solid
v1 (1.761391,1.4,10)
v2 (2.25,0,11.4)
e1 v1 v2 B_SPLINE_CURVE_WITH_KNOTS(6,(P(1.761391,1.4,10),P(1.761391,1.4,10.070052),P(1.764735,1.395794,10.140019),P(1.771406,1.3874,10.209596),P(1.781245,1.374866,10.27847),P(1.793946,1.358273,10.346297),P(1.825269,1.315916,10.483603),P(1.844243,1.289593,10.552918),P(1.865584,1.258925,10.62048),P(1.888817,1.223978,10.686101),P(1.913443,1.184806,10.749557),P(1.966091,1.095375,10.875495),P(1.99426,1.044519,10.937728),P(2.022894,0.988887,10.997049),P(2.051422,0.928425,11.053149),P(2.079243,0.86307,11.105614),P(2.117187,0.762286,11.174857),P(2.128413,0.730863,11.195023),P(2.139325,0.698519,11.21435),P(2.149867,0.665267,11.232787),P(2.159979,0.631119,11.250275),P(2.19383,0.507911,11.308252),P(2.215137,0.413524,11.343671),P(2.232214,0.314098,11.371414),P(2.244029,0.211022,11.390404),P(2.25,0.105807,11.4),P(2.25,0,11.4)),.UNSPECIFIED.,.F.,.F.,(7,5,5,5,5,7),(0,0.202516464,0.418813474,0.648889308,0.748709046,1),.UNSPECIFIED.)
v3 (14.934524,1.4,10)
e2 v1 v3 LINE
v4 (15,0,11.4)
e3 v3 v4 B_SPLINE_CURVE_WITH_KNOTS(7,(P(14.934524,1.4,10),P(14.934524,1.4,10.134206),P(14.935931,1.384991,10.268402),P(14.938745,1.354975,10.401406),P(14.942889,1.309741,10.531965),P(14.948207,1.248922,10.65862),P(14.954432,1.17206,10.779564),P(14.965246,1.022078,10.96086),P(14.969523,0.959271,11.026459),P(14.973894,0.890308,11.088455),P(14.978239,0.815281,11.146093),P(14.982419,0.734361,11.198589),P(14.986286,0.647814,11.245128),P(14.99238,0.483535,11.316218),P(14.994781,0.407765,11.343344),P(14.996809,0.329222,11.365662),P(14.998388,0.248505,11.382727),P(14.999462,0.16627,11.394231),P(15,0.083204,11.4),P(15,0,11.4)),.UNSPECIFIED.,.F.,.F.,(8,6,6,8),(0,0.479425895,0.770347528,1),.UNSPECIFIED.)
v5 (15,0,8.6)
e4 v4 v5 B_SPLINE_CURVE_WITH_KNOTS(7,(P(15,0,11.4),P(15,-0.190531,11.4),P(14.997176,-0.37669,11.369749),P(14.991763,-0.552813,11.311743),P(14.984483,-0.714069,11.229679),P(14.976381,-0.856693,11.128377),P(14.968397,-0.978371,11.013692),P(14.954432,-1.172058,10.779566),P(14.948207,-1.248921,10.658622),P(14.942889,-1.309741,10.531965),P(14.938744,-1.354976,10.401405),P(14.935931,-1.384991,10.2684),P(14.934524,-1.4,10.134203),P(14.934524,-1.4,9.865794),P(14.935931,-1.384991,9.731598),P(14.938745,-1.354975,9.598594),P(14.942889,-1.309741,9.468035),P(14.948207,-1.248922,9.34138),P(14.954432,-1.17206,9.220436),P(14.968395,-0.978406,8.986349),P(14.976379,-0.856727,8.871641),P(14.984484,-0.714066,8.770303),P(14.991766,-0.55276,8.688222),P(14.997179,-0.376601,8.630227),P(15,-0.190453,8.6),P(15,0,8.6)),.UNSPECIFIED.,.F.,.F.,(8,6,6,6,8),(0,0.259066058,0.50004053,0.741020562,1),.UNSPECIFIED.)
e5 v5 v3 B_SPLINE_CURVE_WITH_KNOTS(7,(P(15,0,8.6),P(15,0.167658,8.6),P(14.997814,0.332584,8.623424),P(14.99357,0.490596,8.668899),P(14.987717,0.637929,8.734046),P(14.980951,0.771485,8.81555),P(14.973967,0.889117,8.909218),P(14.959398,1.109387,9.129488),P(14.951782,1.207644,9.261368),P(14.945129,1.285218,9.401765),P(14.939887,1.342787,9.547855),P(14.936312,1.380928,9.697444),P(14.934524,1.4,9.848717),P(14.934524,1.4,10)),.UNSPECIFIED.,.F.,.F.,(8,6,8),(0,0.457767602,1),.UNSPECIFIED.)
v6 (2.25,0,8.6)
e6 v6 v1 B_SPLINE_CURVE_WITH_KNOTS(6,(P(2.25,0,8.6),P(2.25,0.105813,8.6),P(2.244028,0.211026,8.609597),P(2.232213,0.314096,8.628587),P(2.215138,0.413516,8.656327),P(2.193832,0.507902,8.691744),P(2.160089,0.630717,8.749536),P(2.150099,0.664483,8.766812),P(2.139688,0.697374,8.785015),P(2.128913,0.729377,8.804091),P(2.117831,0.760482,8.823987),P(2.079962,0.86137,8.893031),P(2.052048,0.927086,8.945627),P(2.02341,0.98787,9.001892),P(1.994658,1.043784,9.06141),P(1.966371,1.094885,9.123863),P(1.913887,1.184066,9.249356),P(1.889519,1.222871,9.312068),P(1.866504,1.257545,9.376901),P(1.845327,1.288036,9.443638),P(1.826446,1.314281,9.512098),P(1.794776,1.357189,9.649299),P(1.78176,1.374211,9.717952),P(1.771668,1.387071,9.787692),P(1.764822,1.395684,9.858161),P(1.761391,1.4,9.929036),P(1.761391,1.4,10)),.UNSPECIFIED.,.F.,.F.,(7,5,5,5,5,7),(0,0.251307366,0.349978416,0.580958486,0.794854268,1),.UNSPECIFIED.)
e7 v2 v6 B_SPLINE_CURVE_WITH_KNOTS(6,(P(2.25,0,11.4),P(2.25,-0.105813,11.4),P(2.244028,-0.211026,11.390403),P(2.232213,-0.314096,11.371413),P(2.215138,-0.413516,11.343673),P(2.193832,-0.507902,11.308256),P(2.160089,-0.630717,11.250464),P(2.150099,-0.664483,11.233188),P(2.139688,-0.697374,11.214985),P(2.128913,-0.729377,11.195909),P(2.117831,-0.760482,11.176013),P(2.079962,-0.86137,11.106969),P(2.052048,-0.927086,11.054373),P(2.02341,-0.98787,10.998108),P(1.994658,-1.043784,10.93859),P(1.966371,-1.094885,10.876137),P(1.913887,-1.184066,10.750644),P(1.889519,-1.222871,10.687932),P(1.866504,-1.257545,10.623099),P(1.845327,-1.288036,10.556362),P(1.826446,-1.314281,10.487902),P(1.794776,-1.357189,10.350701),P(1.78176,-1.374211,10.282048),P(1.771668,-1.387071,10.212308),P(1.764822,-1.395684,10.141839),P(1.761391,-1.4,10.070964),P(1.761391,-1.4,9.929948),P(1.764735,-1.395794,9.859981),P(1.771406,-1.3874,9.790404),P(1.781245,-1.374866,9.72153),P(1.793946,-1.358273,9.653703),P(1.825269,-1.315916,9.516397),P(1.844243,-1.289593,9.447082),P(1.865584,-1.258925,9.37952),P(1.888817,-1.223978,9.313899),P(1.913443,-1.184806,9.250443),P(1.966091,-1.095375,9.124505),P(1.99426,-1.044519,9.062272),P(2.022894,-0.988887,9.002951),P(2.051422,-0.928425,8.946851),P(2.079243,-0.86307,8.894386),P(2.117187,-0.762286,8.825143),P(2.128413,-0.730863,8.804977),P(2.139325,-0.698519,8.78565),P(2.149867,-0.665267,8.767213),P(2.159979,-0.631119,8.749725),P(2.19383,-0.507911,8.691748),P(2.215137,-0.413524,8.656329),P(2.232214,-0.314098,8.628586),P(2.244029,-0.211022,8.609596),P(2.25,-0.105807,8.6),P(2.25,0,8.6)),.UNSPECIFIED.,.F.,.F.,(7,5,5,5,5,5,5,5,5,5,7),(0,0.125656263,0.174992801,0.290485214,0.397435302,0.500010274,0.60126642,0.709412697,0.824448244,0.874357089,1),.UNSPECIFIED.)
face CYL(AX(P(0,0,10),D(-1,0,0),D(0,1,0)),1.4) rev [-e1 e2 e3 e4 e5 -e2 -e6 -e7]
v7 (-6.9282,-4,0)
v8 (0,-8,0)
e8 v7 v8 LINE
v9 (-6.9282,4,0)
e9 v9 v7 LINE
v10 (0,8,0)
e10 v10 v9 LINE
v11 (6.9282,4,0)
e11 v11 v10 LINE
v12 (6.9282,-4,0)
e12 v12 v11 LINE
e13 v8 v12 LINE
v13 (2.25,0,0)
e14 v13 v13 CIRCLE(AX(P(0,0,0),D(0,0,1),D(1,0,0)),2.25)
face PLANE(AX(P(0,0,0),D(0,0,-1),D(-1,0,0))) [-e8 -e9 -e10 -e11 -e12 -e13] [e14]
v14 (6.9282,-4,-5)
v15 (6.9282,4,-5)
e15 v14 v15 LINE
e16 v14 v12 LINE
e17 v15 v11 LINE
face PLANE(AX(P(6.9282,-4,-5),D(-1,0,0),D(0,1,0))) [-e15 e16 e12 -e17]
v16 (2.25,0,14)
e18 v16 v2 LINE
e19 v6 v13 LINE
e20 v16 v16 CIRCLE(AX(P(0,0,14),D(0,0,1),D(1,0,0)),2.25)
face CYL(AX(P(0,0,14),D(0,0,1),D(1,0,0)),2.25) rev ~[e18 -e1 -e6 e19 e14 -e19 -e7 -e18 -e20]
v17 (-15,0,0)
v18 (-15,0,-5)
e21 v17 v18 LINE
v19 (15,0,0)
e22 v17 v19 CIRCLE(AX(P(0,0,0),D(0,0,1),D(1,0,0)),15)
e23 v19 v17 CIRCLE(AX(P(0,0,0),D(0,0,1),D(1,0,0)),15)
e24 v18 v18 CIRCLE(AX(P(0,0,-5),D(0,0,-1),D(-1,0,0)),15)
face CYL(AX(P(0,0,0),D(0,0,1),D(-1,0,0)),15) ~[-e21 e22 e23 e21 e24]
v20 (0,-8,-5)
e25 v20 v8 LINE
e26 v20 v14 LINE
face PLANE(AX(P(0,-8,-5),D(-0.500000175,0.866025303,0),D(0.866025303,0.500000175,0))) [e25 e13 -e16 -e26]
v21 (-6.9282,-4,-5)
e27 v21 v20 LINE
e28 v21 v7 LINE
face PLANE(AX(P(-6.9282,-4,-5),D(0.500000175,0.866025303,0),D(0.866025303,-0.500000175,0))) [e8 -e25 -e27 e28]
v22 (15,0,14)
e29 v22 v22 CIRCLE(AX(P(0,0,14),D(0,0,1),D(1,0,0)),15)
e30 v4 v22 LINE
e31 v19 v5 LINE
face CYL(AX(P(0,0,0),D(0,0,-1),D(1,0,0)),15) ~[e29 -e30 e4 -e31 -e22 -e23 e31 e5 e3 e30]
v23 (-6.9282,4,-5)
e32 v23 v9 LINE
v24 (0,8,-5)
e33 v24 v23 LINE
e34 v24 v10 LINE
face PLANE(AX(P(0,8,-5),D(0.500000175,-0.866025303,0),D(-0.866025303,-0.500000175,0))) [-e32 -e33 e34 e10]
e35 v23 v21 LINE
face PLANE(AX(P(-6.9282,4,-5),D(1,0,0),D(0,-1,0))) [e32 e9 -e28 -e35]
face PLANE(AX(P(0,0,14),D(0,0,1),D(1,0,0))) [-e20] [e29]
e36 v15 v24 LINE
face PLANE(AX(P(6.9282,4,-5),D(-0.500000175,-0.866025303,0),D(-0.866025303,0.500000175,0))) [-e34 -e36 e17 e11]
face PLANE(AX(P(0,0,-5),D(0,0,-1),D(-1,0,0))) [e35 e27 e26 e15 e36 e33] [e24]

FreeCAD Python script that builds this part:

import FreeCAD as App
import Part
import Sketcher
Q = App.Units.Quantity


def add_polygon(sketch, points):
    """Adds a closed chain of lines whose ends are joined by coincident constraints."""
    first, n = sketch.GeometryCount, len(points)
    for a, b in zip(points, points[1:] + points[:1]):
        sketch.addGeometry(Part.LineSegment(App.Vector(*a, 0), App.Vector(*b, 0)), False)
    for i in range(n):
        sketch.addConstraint(Sketcher.Constraint("Coincident", first + i, 2, first + (i + 1) % n, 1))

doc = App.newDocument("Part")
body = doc.addObject("PartDesign::Body", "Body")

# Sketch on XY plane
sketch1 = body.newObject("Sketcher::SketchObject", "Sketch")
sketch1.AttachmentSupport = (doc.getObject("XY_Plane"), [""])
sketch1.MapMode = "FlatFace"
sketch1.addGeometry(Part.Circle(App.Vector(0, 0, 0), App.Vector(0, 0, 1), 15), False)
sketch1.addConstraint([
    Sketcher.Constraint("Coincident", 0, 3, -1, 1),
    Sketcher.Constraint("Diameter", 0, Q("30 mm")),
])
pad1 = body.newObject("PartDesign::Pad", "Pad")
pad1.Profile = sketch1
pad1.Length = 14

# Sketch on XY plane
sketch2 = body.newObject("Sketcher::SketchObject", "Sketch001")
sketch2.AttachmentSupport = (doc.getObject("XY_Plane"), [""])
sketch2.MapMode = "FlatFace"
sketch2.AttachmentOffset = App.Placement(App.Vector(0, 0, 14), App.Rotation())
sketch2.addGeometry(Part.Circle(App.Vector(0, 0, 0), App.Vector(0, 0, 1), 2.25), False)
sketch2.addConstraint([
    Sketcher.Constraint("Coincident", 0, 3, -1, 1),
    Sketcher.Constraint("Diameter", 0, Q("4.5 mm")),
])
pocket1 = body.newObject("PartDesign::Pocket", "Pocket")
pocket1.Profile = sketch2
pocket1.Length = 19

# Sketch on XY plane
sketch3 = body.newObject("Sketcher::SketchObject", "Sketch002")
sketch3.AttachmentSupport = (doc.getObject("XY_Plane"), [""])
sketch3.MapMode = "FlatFace"
sketch3.addGeometry(Part.Circle(App.Vector(0, 0, 0), App.Vector(0, 0, 1), 15), False)
sketch3.addConstraint([
    Sketcher.Constraint("Coincident", 0, 3, -1, 1),
    Sketcher.Constraint("Diameter", 0, Q("30 mm")),
])
pad2 = body.newObject("PartDesign::Pad", "Pad001")
pad2.Profile = sketch3
pad2.Length = 5
pad2.Reversed = True

# Sketch on XY plane
sketch4 = body.newObject("Sketcher::SketchObject", "Sketch003")
sketch4.AttachmentSupport = (doc.getObject("XY_Plane"), [""])
sketch4.MapMode = "FlatFace"
sketch4.AttachmentOffset = App.Placement(App.Vector(0, 0, -5), App.Rotation())
add_polygon(sketch4, [(6.9282, -4), (0, -8), (-6.9282, -4), (-6.9282, 4), (0, 8), (6.9282, 4)])  # lines 0-5
sketch4.addConstraint([
    Sketcher.Constraint("Vertical", 2),
    Sketcher.Constraint("Vertical", 5),
    Sketcher.Constraint("Symmetric", 0, 2, 3, 2, -1, 1),
    Sketcher.Constraint("Symmetric", 1, 2, 4, 2, -1, 1),
    Sketcher.Constraint("PointOnObject", 0, 2, -2),
    Sketcher.Constraint("Parallel", 0, 3),
    Sketcher.Constraint("Horizontal", 2, 2, 4, 2),
    Sketcher.Constraint("DistanceY", 0, 2, 3, 2, Q("16 mm")),
    Sketcher.Constraint("DistanceY", 2, 1, 2, 2, Q("8 mm")),
    Sketcher.Constraint("Angle", 0, Q("-150 deg")),
])
pocket2 = body.newObject("PartDesign::Pocket", "Pocket001")
pocket2.Profile = sketch4
pocket2.Length = 5
pocket2.Reversed = True

# Sketch on YZ plane
sketch5 = body.newObject("Sketcher::SketchObject", "Sketch004")
sketch5.AttachmentSupport = (doc.getObject("YZ_Plane"), [""])
sketch5.MapMode = "FlatFace"
sketch5.addGeometry(Part.Circle(App.Vector(0, 10, 0), App.Vector(0, 0, 1), 1.4), False)
sketch5.addConstraint([
    Sketcher.Constraint("PointOnObject", 0, 3, -2),
    Sketcher.Constraint("Diameter", 0, Q("2.8 mm")),
    Sketcher.Constraint("DistanceY", -1, 1, 0, 3, Q("10 mm")),
])
pocket3 = body.newObject("PartDesign::Pocket", "Pocket002")
pocket3.Profile = sketch5
pocket3.Type = "ThroughAll"
pocket3.Reversed = True

doc.recompute()
